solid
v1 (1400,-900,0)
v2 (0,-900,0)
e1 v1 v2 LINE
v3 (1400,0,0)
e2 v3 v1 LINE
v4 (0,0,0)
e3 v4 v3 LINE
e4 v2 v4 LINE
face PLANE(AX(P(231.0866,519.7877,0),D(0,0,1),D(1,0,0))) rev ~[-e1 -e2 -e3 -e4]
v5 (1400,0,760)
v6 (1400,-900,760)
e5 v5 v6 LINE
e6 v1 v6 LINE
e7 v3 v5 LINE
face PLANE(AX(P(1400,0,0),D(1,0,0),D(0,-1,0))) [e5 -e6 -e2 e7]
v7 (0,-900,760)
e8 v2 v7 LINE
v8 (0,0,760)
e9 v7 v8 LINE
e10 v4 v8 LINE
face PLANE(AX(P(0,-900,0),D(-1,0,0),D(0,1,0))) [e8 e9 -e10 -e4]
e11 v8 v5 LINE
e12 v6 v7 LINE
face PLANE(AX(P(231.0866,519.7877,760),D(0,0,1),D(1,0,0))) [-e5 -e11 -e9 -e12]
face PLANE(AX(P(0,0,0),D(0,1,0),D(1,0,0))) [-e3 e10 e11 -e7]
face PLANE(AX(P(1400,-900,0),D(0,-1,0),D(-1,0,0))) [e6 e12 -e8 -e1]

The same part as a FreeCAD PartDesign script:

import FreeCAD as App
import Part
import Sketcher
from FreeCAD import Vector
Q = App.Units.Quantity


def add_polygon(sketch, points):
    """Adds a closed chain of lines whose ends are joined by coincident constraints."""
    first, n = sketch.GeometryCount, len(points)
    for a, b in zip(points, points[1:] + points[:1]):
        sketch.addGeometry(Part.LineSegment(App.Vector(*a, 0), App.Vector(*b, 0)), False)
    for i in range(n):
        sketch.addConstraint(Sketcher.Constraint("Coincident", first + i, 2, first + (i + 1) % n, 1))

doc = App.newDocument("Part")
body = doc.addObject("PartDesign::Body", "Body")

# Sketch on XY plane
sketch1 = doc.addObject("Sketcher::SketchObject", "Sketch")
body.addObject(sketch1)
sketch1.AttachmentSupport = (doc.XY_Plane, [""])
sketch1.MapMode = "FlatFace"
add_polygon(sketch1, [(1400, 0), (0, 0), (0, -900), (1400, -900)])  # lines 0-3
sketch1.addConstraint(Sketcher.Constraint("Horizontal", 0))
sketch1.addConstraint(Sketcher.Constraint("Vertical", 1))
sketch1.addConstraint(Sketcher.Constraint("Horizontal", 2))
sketch1.addConstraint(Sketcher.Constraint("Vertical", 3))
sketch1.addConstraint(Sketcher.Constraint("Coincident", 0, 2, -1, 1))
sketch1.addConstraint(Sketcher.Constraint("DistanceX", 0, 2, 0, 1, Q("1400 mm")))
sketch1.addConstraint(Sketcher.Constraint("DistanceY", 1, 2, 1, 1, Q("900 mm")))
pad1 = doc.addObject("PartDesign::Pad", "Pad")
body.addObject(pad1)
pad1.Profile = sketch1
pad1.Length = 760

doc.recompute()
